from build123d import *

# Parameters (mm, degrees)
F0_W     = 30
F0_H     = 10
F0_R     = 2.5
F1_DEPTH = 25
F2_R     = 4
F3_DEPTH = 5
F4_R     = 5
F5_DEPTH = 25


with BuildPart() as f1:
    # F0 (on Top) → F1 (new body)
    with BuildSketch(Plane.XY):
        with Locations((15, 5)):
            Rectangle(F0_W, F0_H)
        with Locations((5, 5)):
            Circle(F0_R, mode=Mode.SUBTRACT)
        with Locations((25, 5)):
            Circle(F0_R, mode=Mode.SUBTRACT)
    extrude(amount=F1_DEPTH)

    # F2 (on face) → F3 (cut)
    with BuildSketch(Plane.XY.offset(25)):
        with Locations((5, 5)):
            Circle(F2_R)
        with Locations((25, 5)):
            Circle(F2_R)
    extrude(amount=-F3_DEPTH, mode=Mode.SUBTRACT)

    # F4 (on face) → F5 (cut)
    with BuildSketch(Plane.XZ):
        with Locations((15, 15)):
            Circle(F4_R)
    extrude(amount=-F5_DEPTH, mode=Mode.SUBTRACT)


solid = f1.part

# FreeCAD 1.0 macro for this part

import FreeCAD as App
import Part
import Sketcher

V = App.Vector
Q = App.Units.Quantity


def add_polygon(sketch, points):
    """Adds a closed chain of lines whose ends are joined by coincident constraints."""
    first, n = sketch.GeometryCount, len(points)
    for a, b in zip(points, points[1:] + points[:1]):
        sketch.addGeometry(Part.LineSegment(App.Vector(*a, 0), App.Vector(*b, 0)), False)
    for i in range(n):
        sketch.addConstraint(Sketcher.Constraint("Coincident", first + i, 2, first + (i + 1) % n, 1))

doc = App.newDocument("Part")
body = doc.addObject("PartDesign::Body", "Body")

sketch1 = doc.addObject("Sketcher::SketchObject", "Sketch")
body.addObject(sketch1)
sketch1.AttachmentSupport = (doc.XY_Plane, [""])
sketch1.MapMode = "FlatFace"
add_polygon(sketch1, [(0, 10), (0, 0), (30, 0), (30, 10)])
sketch1.addGeometry(Part.Circle(V(5, 5, 0), V(0, 0, 1), 2.5), False)
sketch1.addGeometry(Part.Circle(V(25, 5, 0), V(0, 0, 1), 2.5), False)
sketch1.addConstraint([
    Sketcher.Constraint("Vertical", 0),
    Sketcher.Constraint("Horizontal", 1),
    Sketcher.Constraint("Vertical", 2),
    Sketcher.Constraint("Horizontal", 3),
    Sketcher.Constraint("Coincident", 0, 2, -1, 1),
    Sketcher.Constraint("Equal", 4, 5),
    Sketcher.Constraint("Horizontal", 4, 3, 5, 3),
    Sketcher.Constraint("Diameter", 4, Q("5 mm")),
    Sketcher.Constraint("DistanceX", 1, 1, 1, 2, Q("30 mm")),
    Sketcher.Constraint("DistanceY", 0, 2, 0, 1, Q("10 mm")),
    Sketcher.Constraint("DistanceX", -1, 1, 4, 3, Q("5 mm")),
    Sketcher.Constraint("DistanceY", -1, 1, 4, 3, Q("5 mm")),
    Sketcher.Constraint("DistanceX", -1, 1, 5, 3, Q("25 mm")),
])
pad1 = doc.addObject("PartDesign::Pad", "Pad")
body.addObject(pad1)
pad1.Profile = sketch1
pad1.Length = 25

sketch2 = doc.addObject("Sketcher::SketchObject", "Sketch001")
body.addObject(sketch2)
sketch2.AttachmentSupport = (doc.XY_Plane, [""])
sketch2.MapMode = "FlatFace"
sketch2.AttachmentOffset = App.Placement(V(0, 0, 25), App.Rotation())
sketch2.addGeometry([
    Part.Circle(V(5, 5, 0), V(0, 0, 1), 4),
    Part.Circle(V(25, 5, 0), V(0, 0, 1), 4),
], False)
sketch2.addConstraint([
    Sketcher.Constraint("Equal", 0, 1),
    Sketcher.Constraint("Horizontal", 0, 3, 1, 3),
    Sketcher.Constraint("Diameter", 0, Q("8 mm")),
    Sketcher.Constraint("DistanceX", -1, 1, 0, 3, Q("5 mm")),
    Sketcher.Constraint("DistanceY", -1, 1, 0, 3, Q("5 mm")),
    Sketcher.Constraint("DistanceX", -1, 1, 1, 3, Q("25 mm")),
])
pocket1 = doc.addObject("PartDesign::Pocket", "Pocket")
body.addObject(pocket1)
pocket1.Profile = sketch2
pocket1.Length = 5

sketch3 = doc.addObject("Sketcher::SketchObject", "Sketch002")
body.addObject(sketch3)
sketch3.AttachmentSupport = (doc.XZ_Plane, [""])
sketch3.MapMode = "FlatFace"
sketch3.addGeometry(Part.Circle(V(15, 15, 0), V(0, 0, 1), 5), False)
sketch3.addConstraint([
    Sketcher.Constraint("Diameter", 0, Q("10 mm")),
    Sketcher.Constraint("DistanceX", -1, 1, 0, 3, Q("15 mm")),
    Sketcher.Constraint("DistanceY", -1, 1, 0, 3, Q("15 mm")),
])
pocket2 = doc.addObject("PartDesign::Pocket", "Pocket001")
body.addObject(pocket2)
pocket2.Profile = sketch3
pocket2.Length = 25

doc.recompute()
